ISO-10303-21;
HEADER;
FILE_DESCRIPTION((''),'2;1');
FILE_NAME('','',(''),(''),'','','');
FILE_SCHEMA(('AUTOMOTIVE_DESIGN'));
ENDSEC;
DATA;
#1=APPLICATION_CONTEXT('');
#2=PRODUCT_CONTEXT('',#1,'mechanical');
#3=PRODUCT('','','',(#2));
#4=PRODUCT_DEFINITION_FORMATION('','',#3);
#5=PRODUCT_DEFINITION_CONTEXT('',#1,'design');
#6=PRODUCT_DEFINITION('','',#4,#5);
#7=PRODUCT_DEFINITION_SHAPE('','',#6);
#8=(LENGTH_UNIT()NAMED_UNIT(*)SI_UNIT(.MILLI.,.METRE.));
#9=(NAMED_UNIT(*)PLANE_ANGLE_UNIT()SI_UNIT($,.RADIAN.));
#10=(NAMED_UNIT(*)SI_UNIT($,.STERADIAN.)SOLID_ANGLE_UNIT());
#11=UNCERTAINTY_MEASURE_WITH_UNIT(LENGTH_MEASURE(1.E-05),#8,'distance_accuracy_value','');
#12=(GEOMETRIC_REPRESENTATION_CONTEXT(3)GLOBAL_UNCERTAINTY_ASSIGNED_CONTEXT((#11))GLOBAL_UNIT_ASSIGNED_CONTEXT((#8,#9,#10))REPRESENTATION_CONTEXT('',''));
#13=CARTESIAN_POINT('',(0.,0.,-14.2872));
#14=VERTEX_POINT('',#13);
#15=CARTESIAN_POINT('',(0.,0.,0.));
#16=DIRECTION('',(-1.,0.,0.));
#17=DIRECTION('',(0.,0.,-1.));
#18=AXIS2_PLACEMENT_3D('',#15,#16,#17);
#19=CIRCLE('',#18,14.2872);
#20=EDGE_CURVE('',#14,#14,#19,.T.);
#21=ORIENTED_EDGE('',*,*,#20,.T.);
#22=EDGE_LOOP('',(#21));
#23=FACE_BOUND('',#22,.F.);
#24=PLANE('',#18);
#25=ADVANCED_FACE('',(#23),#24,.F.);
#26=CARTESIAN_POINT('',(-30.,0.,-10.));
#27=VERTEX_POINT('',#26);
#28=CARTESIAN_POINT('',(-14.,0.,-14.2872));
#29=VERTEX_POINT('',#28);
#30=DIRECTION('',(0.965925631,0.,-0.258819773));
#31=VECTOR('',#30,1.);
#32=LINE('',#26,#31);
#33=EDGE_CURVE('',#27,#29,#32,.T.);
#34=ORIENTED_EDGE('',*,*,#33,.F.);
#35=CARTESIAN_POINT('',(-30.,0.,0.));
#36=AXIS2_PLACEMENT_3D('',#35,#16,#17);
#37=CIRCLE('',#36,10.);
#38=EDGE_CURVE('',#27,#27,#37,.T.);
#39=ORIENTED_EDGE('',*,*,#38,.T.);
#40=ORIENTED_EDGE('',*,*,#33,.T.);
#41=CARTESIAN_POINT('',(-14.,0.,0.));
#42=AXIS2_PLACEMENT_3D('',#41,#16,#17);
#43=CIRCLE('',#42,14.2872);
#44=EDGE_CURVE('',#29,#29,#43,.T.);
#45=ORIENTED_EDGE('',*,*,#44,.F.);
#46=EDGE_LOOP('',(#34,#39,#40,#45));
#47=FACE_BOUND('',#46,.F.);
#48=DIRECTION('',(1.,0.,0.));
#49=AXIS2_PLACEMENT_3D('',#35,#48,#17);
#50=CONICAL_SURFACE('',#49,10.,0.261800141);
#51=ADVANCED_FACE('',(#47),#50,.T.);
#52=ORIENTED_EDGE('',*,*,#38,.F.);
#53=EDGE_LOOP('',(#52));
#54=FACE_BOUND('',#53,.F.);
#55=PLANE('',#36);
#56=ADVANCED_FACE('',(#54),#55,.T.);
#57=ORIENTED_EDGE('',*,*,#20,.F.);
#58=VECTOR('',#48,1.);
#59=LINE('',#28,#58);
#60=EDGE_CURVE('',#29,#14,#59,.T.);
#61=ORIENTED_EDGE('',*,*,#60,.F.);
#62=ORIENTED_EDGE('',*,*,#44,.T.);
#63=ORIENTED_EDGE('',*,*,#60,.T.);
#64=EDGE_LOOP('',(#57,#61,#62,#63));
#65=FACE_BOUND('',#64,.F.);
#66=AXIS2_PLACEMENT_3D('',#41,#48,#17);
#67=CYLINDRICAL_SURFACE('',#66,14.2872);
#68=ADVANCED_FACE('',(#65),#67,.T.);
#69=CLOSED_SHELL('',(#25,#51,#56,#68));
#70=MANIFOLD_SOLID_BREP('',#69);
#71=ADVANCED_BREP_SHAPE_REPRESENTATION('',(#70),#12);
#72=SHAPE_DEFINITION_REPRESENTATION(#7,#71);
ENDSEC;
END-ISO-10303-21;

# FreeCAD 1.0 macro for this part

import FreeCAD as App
import Part
import Sketcher
from FreeCAD import Vector
Q = App.Units.Quantity

doc = App.newDocument("Part")
body = doc.addObject("PartDesign::Body", "Body")

# Sketch on XZ plane
sketch1 = doc.addObject("Sketcher::SketchObject", "Sketch")
body.addObject(sketch1)
sketch1.AttachmentSupport = (doc.XZ_Plane, [""])
sketch1.MapMode = "FlatFace"
sketch1.addGeometry([
    Part.LineSegment(Vector(-30, 0, 0), Vector(0, 0, 0)),  # 0
    Part.LineSegment(Vector(0, 0, 0), Vector(0, -14.2872, 0)),  # 1
    Part.LineSegment(Vector(0, -14.2872, 0), Vector(-14, -14.2872, 0)),  # 2
    Part.LineSegment(Vector(-14, -14.2872, 0), Vector(-30, -10, 0)),  # 3
    Part.LineSegment(Vector(-30, -10, 0), Vector(-30, 0, 0)),  # 4
], False)
sketch1.addConstraint([
    Sketcher.Constraint("Coincident", 0, 2, 1, 1),
    Sketcher.Constraint("Coincident", 1, 2, 2, 1),
    Sketcher.Constraint("Coincident", 2, 2, 3, 1),
    Sketcher.Constraint("Coincident", 3, 2, 4, 1),
    Sketcher.Constraint("Coincident", 4, 2, 0, 1),
    Sketcher.Constraint("Horizontal", 0),
    Sketcher.Constraint("Vertical", 1),
    Sketcher.Constraint("Horizontal", 2),
    Sketcher.Constraint("Vertical", 4),
    Sketcher.Constraint("Coincident", 0, 2, -1, 1),
    Sketcher.Constraint("DistanceX", 2, 2, 2, 1, Q("14 mm")),
    Sketcher.Constraint("DistanceY", 4, 1, 4, 2, Q("10 mm")),
    Sketcher.Constraint("DistanceX", 3, 2, 2, 2, Q("16 mm")),
    Sketcher.Constraint("Angle", 3, Q("165 deg")),
])
revolution = doc.addObject("PartDesign::Revolution", "Revolution")
body.addObject(revolution)
revolution.Profile = sketch1
revolution.ReferenceAxis = (sketch1, ["H_Axis"])
revolution.Angle = 360

doc.recompute()
